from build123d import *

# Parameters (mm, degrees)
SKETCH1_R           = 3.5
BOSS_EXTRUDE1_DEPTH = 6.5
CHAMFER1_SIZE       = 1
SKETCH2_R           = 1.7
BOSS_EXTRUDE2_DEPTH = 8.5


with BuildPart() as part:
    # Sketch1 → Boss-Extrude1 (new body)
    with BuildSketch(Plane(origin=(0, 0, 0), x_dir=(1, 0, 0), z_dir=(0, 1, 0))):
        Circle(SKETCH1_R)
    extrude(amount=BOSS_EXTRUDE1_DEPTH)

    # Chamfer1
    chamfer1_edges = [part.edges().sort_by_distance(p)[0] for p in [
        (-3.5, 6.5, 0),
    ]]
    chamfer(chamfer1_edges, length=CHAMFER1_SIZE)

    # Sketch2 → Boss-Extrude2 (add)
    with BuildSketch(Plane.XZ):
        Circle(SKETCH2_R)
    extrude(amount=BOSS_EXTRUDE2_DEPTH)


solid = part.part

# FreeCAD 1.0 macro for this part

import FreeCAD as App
import Part
import Sketcher
from FreeCAD import Vector
Q = App.Units.Quantity


def edges_at(feature, points):
    """Names of the edges that pass closest to the given points."""
    edges = feature.Shape.Edges
    near = lambda p: min(range(len(edges)), key=lambda i: edges[i].distToShape(Part.Vertex(*p))[0])
    return sorted({f"Edge{near(p) + 1}" for p in points})

doc = App.newDocument("Part")
body = doc.addObject("PartDesign::Body", "Body")

# Sketch on XZ plane
sketch1 = doc.addObject("Sketcher::SketchObject", "Sketch")
body.addObject(sketch1)
sketch1.AttachmentSupport = (doc.XZ_Plane, [""])
sketch1.MapMode = "FlatFace"
sketch1.addGeometry(Part.Circle(Vector(0, 0, 0), Vector(0, 0, 1), 3.5), False)
sketch1.addConstraint(Sketcher.Constraint("Coincident", 0, 3, -1, 1))
sketch1.addConstraint(Sketcher.Constraint("Diameter", 0, Q("7 mm")))
pad1 = doc.addObject("PartDesign::Pad", "Pad")
body.addObject(pad1)
pad1.Profile = sketch1
pad1.Length = 6.5
pad1.Reversed = True
doc.recompute()

chamfer = doc.addObject("PartDesign::Chamfer", "Chamfer")
body.addObject(chamfer)
chamfer.Base = (pad1, edges_at(pad1, [(-3.5, 6.5, 0)]))
chamfer.Size = 1

# Sketch on XZ plane
sketch2 = doc.addObject("Sketcher::SketchObject", "Sketch001")
body.addObject(sketch2)
sketch2.AttachmentSupport = (doc.XZ_Plane, [""])
sketch2.MapMode = "FlatFace"
sketch2.addGeometry(Part.Circle(Vector(0, 0, 0), Vector(0, 0, 1), 1.7), False)
sketch2.addConstraint(Sketcher.Constraint("Coincident", 0, 3, -1, 1))
sketch2.addConstraint(Sketcher.Constraint("Diameter", 0, Q("3.4 mm")))
pad2 = doc.addObject("PartDesign::Pad", "Pad001")
body.addObject(pad2)
pad2.Profile = sketch2
pad2.Length = 8.5

doc.recompute()
